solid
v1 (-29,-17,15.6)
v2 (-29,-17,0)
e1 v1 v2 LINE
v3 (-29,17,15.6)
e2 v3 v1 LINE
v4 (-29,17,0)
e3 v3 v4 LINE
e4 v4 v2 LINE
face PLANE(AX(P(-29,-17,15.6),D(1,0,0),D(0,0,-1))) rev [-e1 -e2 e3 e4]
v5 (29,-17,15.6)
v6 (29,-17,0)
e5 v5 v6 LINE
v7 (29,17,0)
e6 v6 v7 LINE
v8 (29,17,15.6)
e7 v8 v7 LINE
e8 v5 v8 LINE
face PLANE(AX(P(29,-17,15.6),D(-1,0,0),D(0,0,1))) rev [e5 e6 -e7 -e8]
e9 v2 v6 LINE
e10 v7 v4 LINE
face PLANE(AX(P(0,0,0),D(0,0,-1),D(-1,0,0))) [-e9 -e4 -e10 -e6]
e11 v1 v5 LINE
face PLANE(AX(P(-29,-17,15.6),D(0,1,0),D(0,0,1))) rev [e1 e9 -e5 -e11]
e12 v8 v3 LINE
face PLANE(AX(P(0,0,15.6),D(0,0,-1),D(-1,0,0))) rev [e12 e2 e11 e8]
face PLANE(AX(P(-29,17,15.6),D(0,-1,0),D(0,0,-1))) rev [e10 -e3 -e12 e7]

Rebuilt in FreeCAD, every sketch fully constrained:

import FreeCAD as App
import Part
import Sketcher
Q = App.Units.Quantity

doc = App.newDocument("Part")
body = doc.addObject("PartDesign::Body", "Body")

sketch1 = body.newObject("Sketcher::SketchObject", "Sketch")
sketch1.AttachmentSupport = (doc.getObject("XY_Plane"), [""])
sketch1.MapMode = "FlatFace"
sketch1.addGeometry([
    Part.LineSegment(App.Vector(-29, 17, 0), App.Vector(-29, -17, 0)),
    Part.LineSegment(App.Vector(-29, -17, 0), App.Vector(29, -17, 0)),
    Part.LineSegment(App.Vector(29, -17, 0), App.Vector(29, 17, 0)),
    Part.LineSegment(App.Vector(29, 17, 0), App.Vector(-29, 17, 0)),
], False)
sketch1.addConstraint([
    Sketcher.Constraint("Coincident", 0, 2, 1, 1),
    Sketcher.Constraint("Coincident", 1, 2, 2, 1),
    Sketcher.Constraint("Coincident", 2, 2, 3, 1),
    Sketcher.Constraint("Coincident", 3, 2, 0, 1),
    Sketcher.Constraint("Vertical", 0),
    Sketcher.Constraint("Horizontal", 1),
    Sketcher.Constraint("Vertical", 2),
    Sketcher.Constraint("Horizontal", 3),
    Sketcher.Constraint("Symmetric", 0, 2, 2, 2, -1, 1),
    Sketcher.Constraint("DistanceX", 1, 1, 1, 2, Q("58 mm")),
    Sketcher.Constraint("DistanceY", 0, 2, 0, 1, Q("34 mm")),
])
pad1 = body.newObject("PartDesign::Pad", "Pad")
pad1.Profile = sketch1
pad1.Length = 15.6

doc.recompute()
